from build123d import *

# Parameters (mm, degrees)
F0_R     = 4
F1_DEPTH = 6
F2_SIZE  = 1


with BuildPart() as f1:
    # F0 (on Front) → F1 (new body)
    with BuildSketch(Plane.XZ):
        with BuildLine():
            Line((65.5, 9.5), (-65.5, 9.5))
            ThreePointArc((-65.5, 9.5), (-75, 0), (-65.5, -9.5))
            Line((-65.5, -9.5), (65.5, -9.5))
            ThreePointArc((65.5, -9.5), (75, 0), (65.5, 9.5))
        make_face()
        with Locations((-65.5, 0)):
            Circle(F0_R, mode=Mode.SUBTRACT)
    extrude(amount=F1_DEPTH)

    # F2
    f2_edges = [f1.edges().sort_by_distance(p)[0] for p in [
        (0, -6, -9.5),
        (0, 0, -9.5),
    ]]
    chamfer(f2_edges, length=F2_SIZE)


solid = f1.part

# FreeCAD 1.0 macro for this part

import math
import FreeCAD as App
import Part
import Sketcher
Q = App.Units.Quantity


def edges_at(feature, points):
    """Names of the edges that pass closest to the given points."""
    edges = feature.Shape.Edges
    near = lambda p: min(range(len(edges)), key=lambda i: edges[i].distToShape(Part.Vertex(*p))[0])
    return sorted({f"Edge{near(p) + 1}" for p in points})

doc = App.newDocument("Part")
body = doc.addObject("PartDesign::Body", "Body")

sketch1 = body.newObject("Sketcher::SketchObject", "Sketch")
sketch1.AttachmentSupport = (doc.getObject("XZ_Plane"), [""])
sketch1.MapMode = "FlatFace"
sketch1.addGeometry([
    Part.LineSegment(App.Vector(65.5, 9.5, 0), App.Vector(-65.5, 9.5, 0)),
    Part.ArcOfCircle(Part.Circle(App.Vector(-65.5, 0, 0), App.Vector(0, 0, 1), 9.5), math.radians(90), math.radians(270)),
    Part.LineSegment(App.Vector(-65.5, -9.5, 0), App.Vector(65.5, -9.5, 0)),
    Part.ArcOfCircle(Part.Circle(App.Vector(65.5, 0, 0), App.Vector(0, 0, 1), 9.5), math.radians(-90), math.radians(90)),
    Part.Circle(App.Vector(-65.5, 0, 0), App.Vector(0, 0, 1), 4),
], False)
sketch1.addConstraint([
    Sketcher.Constraint("Tangent", 0, 2, 1, 1),
    Sketcher.Constraint("Tangent", 1, 2, 2, 1),
    Sketcher.Constraint("Tangent", 2, 2, 3, 1),
    Sketcher.Constraint("Tangent", 3, 2, 0, 1),
    Sketcher.Constraint("Horizontal", 0),
    Sketcher.Constraint("Horizontal", 2),
    Sketcher.Constraint("Coincident", 4, 3, 1, 3),
    Sketcher.Constraint("Symmetric", 1, 3, 3, 3, -1, 1),
    Sketcher.Constraint("Diameter", 4, Q("8 mm")),
    Sketcher.Constraint("Radius", 1, Q("9.5 mm")),
    Sketcher.Constraint("DistanceX", 0, 2, 0, 1, Q("131 mm")),
])
pad1 = body.newObject("PartDesign::Pad", "Pad")
pad1.Profile = sketch1
pad1.Length = 6
doc.recompute()

chamfer = body.newObject("PartDesign::Chamfer", "Chamfer")
chamfer.Base = (pad1, edges_at(pad1, [(0, -6, -9.5), (0, 0, -9.5)]))
chamfer.Size = 1

doc.recompute()
